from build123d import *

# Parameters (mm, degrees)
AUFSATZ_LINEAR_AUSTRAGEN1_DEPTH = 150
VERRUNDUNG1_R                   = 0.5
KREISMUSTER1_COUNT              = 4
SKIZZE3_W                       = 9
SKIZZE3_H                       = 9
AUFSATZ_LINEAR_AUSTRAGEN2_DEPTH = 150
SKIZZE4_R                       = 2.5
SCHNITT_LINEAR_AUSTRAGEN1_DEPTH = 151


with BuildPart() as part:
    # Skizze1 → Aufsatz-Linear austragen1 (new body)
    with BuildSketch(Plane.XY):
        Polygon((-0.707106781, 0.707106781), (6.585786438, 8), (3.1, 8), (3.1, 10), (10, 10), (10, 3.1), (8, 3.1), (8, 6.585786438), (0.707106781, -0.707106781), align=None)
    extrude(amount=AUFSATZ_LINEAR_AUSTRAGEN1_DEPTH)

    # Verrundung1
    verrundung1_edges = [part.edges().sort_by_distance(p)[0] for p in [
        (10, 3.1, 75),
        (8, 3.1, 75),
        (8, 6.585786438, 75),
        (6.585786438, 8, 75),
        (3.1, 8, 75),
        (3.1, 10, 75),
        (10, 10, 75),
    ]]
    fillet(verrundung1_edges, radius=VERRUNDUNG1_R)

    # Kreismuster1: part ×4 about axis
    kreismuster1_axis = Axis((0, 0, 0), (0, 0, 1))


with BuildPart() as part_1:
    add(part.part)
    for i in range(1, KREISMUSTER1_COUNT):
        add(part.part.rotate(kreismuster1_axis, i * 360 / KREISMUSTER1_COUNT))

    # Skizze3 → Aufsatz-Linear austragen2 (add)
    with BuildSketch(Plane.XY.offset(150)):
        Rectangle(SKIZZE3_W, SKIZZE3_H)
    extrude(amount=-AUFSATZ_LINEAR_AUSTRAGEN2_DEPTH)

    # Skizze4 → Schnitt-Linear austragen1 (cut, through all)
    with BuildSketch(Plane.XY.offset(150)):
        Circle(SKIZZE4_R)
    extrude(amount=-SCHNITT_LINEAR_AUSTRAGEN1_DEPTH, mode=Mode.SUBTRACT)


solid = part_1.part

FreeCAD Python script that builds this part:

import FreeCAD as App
import Part
import Sketcher
from FreeCAD import Vector


def edges_at(feature, points):
    """Names of the edges that pass closest to the given points."""
    edges = feature.Shape.Edges
    near = lambda p: min(range(len(edges)), key=lambda i: edges[i].distToShape(Part.Vertex(*p))[0])
    return sorted({f"Edge{near(p) + 1}" for p in points})


def add_polygon(sketch, points):
    """Adds a closed chain of lines whose ends are joined by coincident constraints."""
    first, n = sketch.GeometryCount, len(points)
    for a, b in zip(points, points[1:] + points[:1]):
        sketch.addGeometry(Part.LineSegment(App.Vector(*a, 0), App.Vector(*b, 0)), False)
    for i in range(n):
        sketch.addConstraint(Sketcher.Constraint("Coincident", first + i, 2, first + (i + 1) % n, 1))

doc = App.newDocument("Part")
body = doc.addObject("PartDesign::Body", "Body")

sketch1 = body.newObject("Sketcher::SketchObject", "Sketch")
sketch1.AttachmentSupport = (doc.getObject("XY_Plane"), [""])
sketch1.MapMode = "FlatFace"
add_polygon(sketch1, [(6.6, 8), (-0.7, 0.7), (0.7, -0.7), (8, 6.6), (8, 3.1), (10, 3.1), (10, 10), (3.1, 10), (3.1, 8)])
sketch1.addConstraint([
    Sketcher.Constraint("Vertical", 3),
    Sketcher.Constraint("Horizontal", 4),
    Sketcher.Constraint("Vertical", 5),
    Sketcher.Constraint("Horizontal", 6),
    Sketcher.Constraint("Vertical", 7),
    Sketcher.Constraint("Horizontal", 8),
    Sketcher.Constraint("Symmetric", 0, 2, 1, 2, -1, 1),
    Sketcher.Constraint("Perpendicular", 0, 1),
    Sketcher.Constraint("Perpendicular", 1, 2),
    Sketcher.Constraint("Equal", 8, 3),
    Sketcher.Constraint("Equal", 6, 5),
    Sketcher.Constraint("Equal", 4, 7),
    Sketcher.Constraint("Equal", 0, 2),
    Sketcher.Constraint("DistanceX", 4, 1, 4, 2, 2.0),
    Sketcher.Constraint("Distance", 1, 2.0),
    Sketcher.Constraint("DistanceX", 6, 2, 6, 1, 6.9),
    Sketcher.Constraint("DistanceX", -1, 1, 2, 2, 8.0),
])
pad1 = body.newObject("PartDesign::Pad", "Pad")
pad1.Profile = sketch1
pad1.Length = 150
doc.recompute()

fillet = body.newObject("PartDesign::Fillet", "Fillet")
fillet.Base = (pad1, edges_at(pad1, [
    (10, 3.1, 75),
    (8, 3.1, 75),
    (8, 6.586, 75),
    (6.586, 8, 75),
    (3.1, 8, 75),
    (3.1, 10, 75),
    (10, 10, 75),
]))
fillet.Radius = 0.5
body2 = doc.addObject("PartDesign::Body", "Body001")
doc.recompute()

body2.BaseFeature = body
doc.recompute()

body3 = doc.addObject("PartDesign::Body", "Body002")
body3.BaseFeature = body
body3.Placement = App.Placement(Vector(0, 0, 0), App.Rotation(Vector(0, 0, 1), 90))
boolean = body2.newObject("PartDesign::Boolean", "Boolean")
boolean.Type = "Fuse"
boolean.addObjects([body3])
doc.recompute()

body4 = doc.addObject("PartDesign::Body", "Body003")
body4.BaseFeature = body
body4.Placement = App.Placement(Vector(0, 0, 0), App.Rotation(Vector(0, 0, 1), 180))
boolean2 = body2.newObject("PartDesign::Boolean", "Boolean001")
boolean2.Type = "Fuse"
boolean2.addObjects([body4])
doc.recompute()

body.Placement = App.Placement(Vector(0, 0, 0), App.Rotation(Vector(0, 0, 1), 270))
boolean3 = body2.newObject("PartDesign::Boolean", "Boolean002")
boolean3.Type = "Fuse"
boolean3.addObjects([body])

sketch2 = body2.newObject("Sketcher::SketchObject", "Sketch001")
sketch2.AttachmentSupport = (doc.getObject("XY_Plane001"), [""])
sketch2.MapMode = "FlatFace"
sketch2.AttachmentOffset = App.Placement(Vector(0, 0, 150), App.Rotation())
add_polygon(sketch2, [(-4, 4), (-4, -4), (4, -4), (4, 4)])
sketch2.addConstraint([
    Sketcher.Constraint("Vertical", 0),
    Sketcher.Constraint("Horizontal", 1),
    Sketcher.Constraint("Vertical", 2),
    Sketcher.Constraint("Horizontal", 3),
    Sketcher.Constraint("Symmetric", 0, 2, 2, 2, -1, 1),
    Sketcher.Constraint("Equal", 3, 0),
    Sketcher.Constraint("DistanceX", 1, 1, 1, 2, 9.0),
])
pad2 = body2.newObject("PartDesign::Pad", "Pad001")
pad2.Profile = sketch2
pad2.Length = 150
pad2.Reversed = True

sketch3 = body2.newObject("Sketcher::SketchObject", "Sketch002")
sketch3.AttachmentSupport = (doc.getObject("XY_Plane001"), [""])
sketch3.MapMode = "FlatFace"
sketch3.AttachmentOffset = App.Placement(Vector(0, 0, 150), App.Rotation())
sketch3.addGeometry(Part.Circle(Vector(0, 0, 0), Vector(0, 0, 1), 2.5), False)
sketch3.addConstraint([
    Sketcher.Constraint("Coincident", 0, 3, -1, 1),
    Sketcher.Constraint("Diameter", 0, 5.0),
])
pocket1 = body2.newObject("PartDesign::Pocket", "Pocket")
pocket1.Profile = sketch3
pocket1.Type = "ThroughAll"

doc.recompute()
